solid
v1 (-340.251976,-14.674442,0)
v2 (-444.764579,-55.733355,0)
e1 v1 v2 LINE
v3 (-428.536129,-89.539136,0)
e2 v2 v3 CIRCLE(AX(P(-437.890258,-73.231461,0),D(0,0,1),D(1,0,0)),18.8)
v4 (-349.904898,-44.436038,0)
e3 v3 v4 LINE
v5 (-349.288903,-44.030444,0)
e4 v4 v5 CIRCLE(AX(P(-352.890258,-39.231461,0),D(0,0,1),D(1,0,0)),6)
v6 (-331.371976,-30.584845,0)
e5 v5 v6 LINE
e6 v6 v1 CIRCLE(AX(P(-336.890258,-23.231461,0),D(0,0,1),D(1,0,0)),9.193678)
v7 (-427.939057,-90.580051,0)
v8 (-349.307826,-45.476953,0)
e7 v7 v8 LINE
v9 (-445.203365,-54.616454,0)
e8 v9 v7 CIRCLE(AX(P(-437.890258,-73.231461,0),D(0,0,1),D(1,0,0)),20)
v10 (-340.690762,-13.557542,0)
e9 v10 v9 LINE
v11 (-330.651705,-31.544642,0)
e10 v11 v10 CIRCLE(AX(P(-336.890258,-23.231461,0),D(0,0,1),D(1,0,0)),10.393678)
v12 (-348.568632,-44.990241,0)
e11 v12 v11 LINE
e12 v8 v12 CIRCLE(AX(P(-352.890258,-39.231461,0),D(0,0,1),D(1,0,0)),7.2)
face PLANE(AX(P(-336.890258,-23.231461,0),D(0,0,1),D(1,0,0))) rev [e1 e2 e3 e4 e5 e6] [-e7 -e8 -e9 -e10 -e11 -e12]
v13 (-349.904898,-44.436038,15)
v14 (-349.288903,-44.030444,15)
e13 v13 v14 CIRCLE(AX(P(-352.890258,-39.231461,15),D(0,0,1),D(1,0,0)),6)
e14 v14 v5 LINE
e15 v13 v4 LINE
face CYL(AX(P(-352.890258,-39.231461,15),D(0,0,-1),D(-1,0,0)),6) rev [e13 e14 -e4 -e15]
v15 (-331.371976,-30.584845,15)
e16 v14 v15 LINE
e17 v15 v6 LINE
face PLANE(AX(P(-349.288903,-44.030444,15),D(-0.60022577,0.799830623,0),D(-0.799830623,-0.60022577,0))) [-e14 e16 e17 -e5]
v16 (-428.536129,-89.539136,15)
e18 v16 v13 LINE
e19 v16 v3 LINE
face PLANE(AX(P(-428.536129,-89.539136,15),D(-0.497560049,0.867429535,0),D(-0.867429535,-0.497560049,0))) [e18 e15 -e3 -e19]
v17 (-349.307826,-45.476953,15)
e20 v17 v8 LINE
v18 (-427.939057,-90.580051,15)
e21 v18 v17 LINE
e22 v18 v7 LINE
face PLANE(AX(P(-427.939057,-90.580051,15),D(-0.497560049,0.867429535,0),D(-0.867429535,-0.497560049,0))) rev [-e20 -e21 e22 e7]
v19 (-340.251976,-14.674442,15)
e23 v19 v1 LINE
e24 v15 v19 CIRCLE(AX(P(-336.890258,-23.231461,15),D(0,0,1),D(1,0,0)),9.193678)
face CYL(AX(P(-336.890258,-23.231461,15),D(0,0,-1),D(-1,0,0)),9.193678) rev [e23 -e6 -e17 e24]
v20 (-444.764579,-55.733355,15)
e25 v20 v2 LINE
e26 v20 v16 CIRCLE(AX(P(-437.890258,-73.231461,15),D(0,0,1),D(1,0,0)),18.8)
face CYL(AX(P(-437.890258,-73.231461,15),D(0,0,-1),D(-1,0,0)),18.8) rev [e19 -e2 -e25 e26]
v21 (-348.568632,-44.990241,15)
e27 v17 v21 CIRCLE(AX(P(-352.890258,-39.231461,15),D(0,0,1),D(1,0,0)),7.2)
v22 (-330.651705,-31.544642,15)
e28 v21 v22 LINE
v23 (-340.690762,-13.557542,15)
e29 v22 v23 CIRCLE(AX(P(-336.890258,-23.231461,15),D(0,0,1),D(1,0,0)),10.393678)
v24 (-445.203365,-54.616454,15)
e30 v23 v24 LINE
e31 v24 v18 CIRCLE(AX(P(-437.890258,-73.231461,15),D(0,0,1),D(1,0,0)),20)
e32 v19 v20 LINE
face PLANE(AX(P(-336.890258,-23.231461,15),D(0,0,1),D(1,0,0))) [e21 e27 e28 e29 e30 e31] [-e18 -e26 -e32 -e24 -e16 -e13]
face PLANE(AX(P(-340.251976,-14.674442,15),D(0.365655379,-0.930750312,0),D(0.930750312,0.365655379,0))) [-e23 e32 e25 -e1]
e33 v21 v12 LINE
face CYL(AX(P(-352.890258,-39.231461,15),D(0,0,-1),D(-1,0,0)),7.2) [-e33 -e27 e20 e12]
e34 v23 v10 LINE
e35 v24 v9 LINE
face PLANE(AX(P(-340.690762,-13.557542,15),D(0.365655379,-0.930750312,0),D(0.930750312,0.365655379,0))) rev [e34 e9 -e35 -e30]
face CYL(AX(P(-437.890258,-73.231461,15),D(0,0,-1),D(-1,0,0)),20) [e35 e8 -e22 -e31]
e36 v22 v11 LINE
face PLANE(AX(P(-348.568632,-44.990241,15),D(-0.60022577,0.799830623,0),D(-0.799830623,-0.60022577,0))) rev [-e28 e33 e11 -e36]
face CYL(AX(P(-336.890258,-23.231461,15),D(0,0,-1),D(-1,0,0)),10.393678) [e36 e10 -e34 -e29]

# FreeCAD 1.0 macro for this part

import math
import FreeCAD as App
import Part
import Sketcher
Q = App.Units.Quantity

doc = App.newDocument("Part")
body = doc.addObject("PartDesign::Body", "Body")

# Sketch on XY plane
sketch1 = body.newObject("Sketcher::SketchObject", "Sketch")
sketch1.AttachmentSupport = (doc.getObject("XY_Plane"), [""])
sketch1.MapMode = "FlatFace"
sketch1.addGeometry([
    Part.LineSegment(App.Vector(-348.6, -45, 0), App.Vector(-330.7, -31.5, 0)),  # 0
    Part.ArcOfCircle(Part.Circle(App.Vector(-336.9, -23.2, 0), App.Vector(0, 0, 1), 10.4), math.radians(-53), math.radians(111)),  # 1
    Part.LineSegment(App.Vector(-340.7, -13.6, 0), App.Vector(-445.2, -54.6, 0)),  # 2
    Part.ArcOfCircle(Part.Circle(App.Vector(-437.9, -73.2, 0), App.Vector(0, 0, 1), 20), math.radians(111), math.radians(300)),  # 3
    Part.LineSegment(App.Vector(-427.9, -90.6, 0), App.Vector(-349.3, -45.5, 0)),  # 4
    Part.ArcOfCircle(Part.Circle(App.Vector(-352.9, -39.2, 0), App.Vector(0, 0, 1), 7.2), math.radians(-60.16), math.radians(-53.11)),  # 5
    Part.LineSegment(App.Vector(-331.4, -30.6, 0), App.Vector(-349.3, -44, 0)),  # 6
    Part.ArcOfCircle(Part.Circle(App.Vector(-352.9, -39.2, 0), App.Vector(0, 0, 1), 6), math.radians(-60.16), math.radians(-53.11)),  # 7
    Part.LineSegment(App.Vector(-349.9, -44.4, 0), App.Vector(-428.5, -89.5, 0)),  # 8
    Part.ArcOfCircle(Part.Circle(App.Vector(-437.9, -73.2, 0), App.Vector(0, 0, 1), 18.8), math.radians(111), math.radians(300)),  # 9
    Part.LineSegment(App.Vector(-444.8, -55.7, 0), App.Vector(-340.3, -14.7, 0)),  # 10
    Part.ArcOfCircle(Part.Circle(App.Vector(-336.9, -23.2, 0), App.Vector(0, 0, 1), 9.2), math.radians(-53), math.radians(111)),  # 11
], False)
sketch1.addConstraint([
    Sketcher.Constraint("Tangent", 0, 2, 1, 1),
    Sketcher.Constraint("Tangent", 1, 2, 2, 1),
    Sketcher.Constraint("Tangent", 2, 2, 3, 1),
    Sketcher.Constraint("Tangent", 3, 2, 4, 1),
    Sketcher.Constraint("Tangent", 4, 2, 5, 1),
    Sketcher.Constraint("Tangent", 5, 2, 0, 1),
    Sketcher.Constraint("Tangent", 6, 2, 7, 2),
    Sketcher.Constraint("Tangent", 7, 1, 8, 1),
    Sketcher.Constraint("Tangent", 8, 2, 9, 2),
    Sketcher.Constraint("Tangent", 9, 1, 10, 1),
    Sketcher.Constraint("Tangent", 10, 2, 11, 2),
    Sketcher.Constraint("Tangent", 11, 1, 6, 1),
    Sketcher.Constraint("Coincident", 7, 3, 5, 3),
    Sketcher.Constraint("Coincident", 9, 3, 3, 3),
    Sketcher.Constraint("Coincident", 11, 3, 1, 3),
    Sketcher.Constraint("Parallel", 0, 6),
    Sketcher.Constraint("Parallel", 4, 8),
    Sketcher.Constraint("Radius", 3, Q("20 mm")),
    Sketcher.Constraint("Radius", 7, Q("6 mm")),
    Sketcher.Constraint("Radius", 5, Q("7.2 mm")),
    Sketcher.Constraint("DistanceX", 3, 3, 1, 3, Q("101 mm")),
    Sketcher.Constraint("DistanceY", 3, 3, 1, 3, Q("50 mm")),
    Sketcher.Constraint("DistanceX", 5, 3, 1, 3, Q("16 mm")),
    Sketcher.Constraint("DistanceY", 5, 3, 1, 3, Q("16 mm")),
    Sketcher.Constraint("DistanceX", 10, 2, 11, 1, Q("8.88 mm")),
    Sketcher.Constraint("DistanceY", 1, 3, -1, 1, Q("23.231461 mm")),
    Sketcher.Constraint("DistanceX", 8, 2, -1, 1, Q("428.536129 mm")),
])
pad1 = body.newObject("PartDesign::Pad", "Pad")
pad1.Profile = sketch1
pad1.Length = 15

doc.recompute()
